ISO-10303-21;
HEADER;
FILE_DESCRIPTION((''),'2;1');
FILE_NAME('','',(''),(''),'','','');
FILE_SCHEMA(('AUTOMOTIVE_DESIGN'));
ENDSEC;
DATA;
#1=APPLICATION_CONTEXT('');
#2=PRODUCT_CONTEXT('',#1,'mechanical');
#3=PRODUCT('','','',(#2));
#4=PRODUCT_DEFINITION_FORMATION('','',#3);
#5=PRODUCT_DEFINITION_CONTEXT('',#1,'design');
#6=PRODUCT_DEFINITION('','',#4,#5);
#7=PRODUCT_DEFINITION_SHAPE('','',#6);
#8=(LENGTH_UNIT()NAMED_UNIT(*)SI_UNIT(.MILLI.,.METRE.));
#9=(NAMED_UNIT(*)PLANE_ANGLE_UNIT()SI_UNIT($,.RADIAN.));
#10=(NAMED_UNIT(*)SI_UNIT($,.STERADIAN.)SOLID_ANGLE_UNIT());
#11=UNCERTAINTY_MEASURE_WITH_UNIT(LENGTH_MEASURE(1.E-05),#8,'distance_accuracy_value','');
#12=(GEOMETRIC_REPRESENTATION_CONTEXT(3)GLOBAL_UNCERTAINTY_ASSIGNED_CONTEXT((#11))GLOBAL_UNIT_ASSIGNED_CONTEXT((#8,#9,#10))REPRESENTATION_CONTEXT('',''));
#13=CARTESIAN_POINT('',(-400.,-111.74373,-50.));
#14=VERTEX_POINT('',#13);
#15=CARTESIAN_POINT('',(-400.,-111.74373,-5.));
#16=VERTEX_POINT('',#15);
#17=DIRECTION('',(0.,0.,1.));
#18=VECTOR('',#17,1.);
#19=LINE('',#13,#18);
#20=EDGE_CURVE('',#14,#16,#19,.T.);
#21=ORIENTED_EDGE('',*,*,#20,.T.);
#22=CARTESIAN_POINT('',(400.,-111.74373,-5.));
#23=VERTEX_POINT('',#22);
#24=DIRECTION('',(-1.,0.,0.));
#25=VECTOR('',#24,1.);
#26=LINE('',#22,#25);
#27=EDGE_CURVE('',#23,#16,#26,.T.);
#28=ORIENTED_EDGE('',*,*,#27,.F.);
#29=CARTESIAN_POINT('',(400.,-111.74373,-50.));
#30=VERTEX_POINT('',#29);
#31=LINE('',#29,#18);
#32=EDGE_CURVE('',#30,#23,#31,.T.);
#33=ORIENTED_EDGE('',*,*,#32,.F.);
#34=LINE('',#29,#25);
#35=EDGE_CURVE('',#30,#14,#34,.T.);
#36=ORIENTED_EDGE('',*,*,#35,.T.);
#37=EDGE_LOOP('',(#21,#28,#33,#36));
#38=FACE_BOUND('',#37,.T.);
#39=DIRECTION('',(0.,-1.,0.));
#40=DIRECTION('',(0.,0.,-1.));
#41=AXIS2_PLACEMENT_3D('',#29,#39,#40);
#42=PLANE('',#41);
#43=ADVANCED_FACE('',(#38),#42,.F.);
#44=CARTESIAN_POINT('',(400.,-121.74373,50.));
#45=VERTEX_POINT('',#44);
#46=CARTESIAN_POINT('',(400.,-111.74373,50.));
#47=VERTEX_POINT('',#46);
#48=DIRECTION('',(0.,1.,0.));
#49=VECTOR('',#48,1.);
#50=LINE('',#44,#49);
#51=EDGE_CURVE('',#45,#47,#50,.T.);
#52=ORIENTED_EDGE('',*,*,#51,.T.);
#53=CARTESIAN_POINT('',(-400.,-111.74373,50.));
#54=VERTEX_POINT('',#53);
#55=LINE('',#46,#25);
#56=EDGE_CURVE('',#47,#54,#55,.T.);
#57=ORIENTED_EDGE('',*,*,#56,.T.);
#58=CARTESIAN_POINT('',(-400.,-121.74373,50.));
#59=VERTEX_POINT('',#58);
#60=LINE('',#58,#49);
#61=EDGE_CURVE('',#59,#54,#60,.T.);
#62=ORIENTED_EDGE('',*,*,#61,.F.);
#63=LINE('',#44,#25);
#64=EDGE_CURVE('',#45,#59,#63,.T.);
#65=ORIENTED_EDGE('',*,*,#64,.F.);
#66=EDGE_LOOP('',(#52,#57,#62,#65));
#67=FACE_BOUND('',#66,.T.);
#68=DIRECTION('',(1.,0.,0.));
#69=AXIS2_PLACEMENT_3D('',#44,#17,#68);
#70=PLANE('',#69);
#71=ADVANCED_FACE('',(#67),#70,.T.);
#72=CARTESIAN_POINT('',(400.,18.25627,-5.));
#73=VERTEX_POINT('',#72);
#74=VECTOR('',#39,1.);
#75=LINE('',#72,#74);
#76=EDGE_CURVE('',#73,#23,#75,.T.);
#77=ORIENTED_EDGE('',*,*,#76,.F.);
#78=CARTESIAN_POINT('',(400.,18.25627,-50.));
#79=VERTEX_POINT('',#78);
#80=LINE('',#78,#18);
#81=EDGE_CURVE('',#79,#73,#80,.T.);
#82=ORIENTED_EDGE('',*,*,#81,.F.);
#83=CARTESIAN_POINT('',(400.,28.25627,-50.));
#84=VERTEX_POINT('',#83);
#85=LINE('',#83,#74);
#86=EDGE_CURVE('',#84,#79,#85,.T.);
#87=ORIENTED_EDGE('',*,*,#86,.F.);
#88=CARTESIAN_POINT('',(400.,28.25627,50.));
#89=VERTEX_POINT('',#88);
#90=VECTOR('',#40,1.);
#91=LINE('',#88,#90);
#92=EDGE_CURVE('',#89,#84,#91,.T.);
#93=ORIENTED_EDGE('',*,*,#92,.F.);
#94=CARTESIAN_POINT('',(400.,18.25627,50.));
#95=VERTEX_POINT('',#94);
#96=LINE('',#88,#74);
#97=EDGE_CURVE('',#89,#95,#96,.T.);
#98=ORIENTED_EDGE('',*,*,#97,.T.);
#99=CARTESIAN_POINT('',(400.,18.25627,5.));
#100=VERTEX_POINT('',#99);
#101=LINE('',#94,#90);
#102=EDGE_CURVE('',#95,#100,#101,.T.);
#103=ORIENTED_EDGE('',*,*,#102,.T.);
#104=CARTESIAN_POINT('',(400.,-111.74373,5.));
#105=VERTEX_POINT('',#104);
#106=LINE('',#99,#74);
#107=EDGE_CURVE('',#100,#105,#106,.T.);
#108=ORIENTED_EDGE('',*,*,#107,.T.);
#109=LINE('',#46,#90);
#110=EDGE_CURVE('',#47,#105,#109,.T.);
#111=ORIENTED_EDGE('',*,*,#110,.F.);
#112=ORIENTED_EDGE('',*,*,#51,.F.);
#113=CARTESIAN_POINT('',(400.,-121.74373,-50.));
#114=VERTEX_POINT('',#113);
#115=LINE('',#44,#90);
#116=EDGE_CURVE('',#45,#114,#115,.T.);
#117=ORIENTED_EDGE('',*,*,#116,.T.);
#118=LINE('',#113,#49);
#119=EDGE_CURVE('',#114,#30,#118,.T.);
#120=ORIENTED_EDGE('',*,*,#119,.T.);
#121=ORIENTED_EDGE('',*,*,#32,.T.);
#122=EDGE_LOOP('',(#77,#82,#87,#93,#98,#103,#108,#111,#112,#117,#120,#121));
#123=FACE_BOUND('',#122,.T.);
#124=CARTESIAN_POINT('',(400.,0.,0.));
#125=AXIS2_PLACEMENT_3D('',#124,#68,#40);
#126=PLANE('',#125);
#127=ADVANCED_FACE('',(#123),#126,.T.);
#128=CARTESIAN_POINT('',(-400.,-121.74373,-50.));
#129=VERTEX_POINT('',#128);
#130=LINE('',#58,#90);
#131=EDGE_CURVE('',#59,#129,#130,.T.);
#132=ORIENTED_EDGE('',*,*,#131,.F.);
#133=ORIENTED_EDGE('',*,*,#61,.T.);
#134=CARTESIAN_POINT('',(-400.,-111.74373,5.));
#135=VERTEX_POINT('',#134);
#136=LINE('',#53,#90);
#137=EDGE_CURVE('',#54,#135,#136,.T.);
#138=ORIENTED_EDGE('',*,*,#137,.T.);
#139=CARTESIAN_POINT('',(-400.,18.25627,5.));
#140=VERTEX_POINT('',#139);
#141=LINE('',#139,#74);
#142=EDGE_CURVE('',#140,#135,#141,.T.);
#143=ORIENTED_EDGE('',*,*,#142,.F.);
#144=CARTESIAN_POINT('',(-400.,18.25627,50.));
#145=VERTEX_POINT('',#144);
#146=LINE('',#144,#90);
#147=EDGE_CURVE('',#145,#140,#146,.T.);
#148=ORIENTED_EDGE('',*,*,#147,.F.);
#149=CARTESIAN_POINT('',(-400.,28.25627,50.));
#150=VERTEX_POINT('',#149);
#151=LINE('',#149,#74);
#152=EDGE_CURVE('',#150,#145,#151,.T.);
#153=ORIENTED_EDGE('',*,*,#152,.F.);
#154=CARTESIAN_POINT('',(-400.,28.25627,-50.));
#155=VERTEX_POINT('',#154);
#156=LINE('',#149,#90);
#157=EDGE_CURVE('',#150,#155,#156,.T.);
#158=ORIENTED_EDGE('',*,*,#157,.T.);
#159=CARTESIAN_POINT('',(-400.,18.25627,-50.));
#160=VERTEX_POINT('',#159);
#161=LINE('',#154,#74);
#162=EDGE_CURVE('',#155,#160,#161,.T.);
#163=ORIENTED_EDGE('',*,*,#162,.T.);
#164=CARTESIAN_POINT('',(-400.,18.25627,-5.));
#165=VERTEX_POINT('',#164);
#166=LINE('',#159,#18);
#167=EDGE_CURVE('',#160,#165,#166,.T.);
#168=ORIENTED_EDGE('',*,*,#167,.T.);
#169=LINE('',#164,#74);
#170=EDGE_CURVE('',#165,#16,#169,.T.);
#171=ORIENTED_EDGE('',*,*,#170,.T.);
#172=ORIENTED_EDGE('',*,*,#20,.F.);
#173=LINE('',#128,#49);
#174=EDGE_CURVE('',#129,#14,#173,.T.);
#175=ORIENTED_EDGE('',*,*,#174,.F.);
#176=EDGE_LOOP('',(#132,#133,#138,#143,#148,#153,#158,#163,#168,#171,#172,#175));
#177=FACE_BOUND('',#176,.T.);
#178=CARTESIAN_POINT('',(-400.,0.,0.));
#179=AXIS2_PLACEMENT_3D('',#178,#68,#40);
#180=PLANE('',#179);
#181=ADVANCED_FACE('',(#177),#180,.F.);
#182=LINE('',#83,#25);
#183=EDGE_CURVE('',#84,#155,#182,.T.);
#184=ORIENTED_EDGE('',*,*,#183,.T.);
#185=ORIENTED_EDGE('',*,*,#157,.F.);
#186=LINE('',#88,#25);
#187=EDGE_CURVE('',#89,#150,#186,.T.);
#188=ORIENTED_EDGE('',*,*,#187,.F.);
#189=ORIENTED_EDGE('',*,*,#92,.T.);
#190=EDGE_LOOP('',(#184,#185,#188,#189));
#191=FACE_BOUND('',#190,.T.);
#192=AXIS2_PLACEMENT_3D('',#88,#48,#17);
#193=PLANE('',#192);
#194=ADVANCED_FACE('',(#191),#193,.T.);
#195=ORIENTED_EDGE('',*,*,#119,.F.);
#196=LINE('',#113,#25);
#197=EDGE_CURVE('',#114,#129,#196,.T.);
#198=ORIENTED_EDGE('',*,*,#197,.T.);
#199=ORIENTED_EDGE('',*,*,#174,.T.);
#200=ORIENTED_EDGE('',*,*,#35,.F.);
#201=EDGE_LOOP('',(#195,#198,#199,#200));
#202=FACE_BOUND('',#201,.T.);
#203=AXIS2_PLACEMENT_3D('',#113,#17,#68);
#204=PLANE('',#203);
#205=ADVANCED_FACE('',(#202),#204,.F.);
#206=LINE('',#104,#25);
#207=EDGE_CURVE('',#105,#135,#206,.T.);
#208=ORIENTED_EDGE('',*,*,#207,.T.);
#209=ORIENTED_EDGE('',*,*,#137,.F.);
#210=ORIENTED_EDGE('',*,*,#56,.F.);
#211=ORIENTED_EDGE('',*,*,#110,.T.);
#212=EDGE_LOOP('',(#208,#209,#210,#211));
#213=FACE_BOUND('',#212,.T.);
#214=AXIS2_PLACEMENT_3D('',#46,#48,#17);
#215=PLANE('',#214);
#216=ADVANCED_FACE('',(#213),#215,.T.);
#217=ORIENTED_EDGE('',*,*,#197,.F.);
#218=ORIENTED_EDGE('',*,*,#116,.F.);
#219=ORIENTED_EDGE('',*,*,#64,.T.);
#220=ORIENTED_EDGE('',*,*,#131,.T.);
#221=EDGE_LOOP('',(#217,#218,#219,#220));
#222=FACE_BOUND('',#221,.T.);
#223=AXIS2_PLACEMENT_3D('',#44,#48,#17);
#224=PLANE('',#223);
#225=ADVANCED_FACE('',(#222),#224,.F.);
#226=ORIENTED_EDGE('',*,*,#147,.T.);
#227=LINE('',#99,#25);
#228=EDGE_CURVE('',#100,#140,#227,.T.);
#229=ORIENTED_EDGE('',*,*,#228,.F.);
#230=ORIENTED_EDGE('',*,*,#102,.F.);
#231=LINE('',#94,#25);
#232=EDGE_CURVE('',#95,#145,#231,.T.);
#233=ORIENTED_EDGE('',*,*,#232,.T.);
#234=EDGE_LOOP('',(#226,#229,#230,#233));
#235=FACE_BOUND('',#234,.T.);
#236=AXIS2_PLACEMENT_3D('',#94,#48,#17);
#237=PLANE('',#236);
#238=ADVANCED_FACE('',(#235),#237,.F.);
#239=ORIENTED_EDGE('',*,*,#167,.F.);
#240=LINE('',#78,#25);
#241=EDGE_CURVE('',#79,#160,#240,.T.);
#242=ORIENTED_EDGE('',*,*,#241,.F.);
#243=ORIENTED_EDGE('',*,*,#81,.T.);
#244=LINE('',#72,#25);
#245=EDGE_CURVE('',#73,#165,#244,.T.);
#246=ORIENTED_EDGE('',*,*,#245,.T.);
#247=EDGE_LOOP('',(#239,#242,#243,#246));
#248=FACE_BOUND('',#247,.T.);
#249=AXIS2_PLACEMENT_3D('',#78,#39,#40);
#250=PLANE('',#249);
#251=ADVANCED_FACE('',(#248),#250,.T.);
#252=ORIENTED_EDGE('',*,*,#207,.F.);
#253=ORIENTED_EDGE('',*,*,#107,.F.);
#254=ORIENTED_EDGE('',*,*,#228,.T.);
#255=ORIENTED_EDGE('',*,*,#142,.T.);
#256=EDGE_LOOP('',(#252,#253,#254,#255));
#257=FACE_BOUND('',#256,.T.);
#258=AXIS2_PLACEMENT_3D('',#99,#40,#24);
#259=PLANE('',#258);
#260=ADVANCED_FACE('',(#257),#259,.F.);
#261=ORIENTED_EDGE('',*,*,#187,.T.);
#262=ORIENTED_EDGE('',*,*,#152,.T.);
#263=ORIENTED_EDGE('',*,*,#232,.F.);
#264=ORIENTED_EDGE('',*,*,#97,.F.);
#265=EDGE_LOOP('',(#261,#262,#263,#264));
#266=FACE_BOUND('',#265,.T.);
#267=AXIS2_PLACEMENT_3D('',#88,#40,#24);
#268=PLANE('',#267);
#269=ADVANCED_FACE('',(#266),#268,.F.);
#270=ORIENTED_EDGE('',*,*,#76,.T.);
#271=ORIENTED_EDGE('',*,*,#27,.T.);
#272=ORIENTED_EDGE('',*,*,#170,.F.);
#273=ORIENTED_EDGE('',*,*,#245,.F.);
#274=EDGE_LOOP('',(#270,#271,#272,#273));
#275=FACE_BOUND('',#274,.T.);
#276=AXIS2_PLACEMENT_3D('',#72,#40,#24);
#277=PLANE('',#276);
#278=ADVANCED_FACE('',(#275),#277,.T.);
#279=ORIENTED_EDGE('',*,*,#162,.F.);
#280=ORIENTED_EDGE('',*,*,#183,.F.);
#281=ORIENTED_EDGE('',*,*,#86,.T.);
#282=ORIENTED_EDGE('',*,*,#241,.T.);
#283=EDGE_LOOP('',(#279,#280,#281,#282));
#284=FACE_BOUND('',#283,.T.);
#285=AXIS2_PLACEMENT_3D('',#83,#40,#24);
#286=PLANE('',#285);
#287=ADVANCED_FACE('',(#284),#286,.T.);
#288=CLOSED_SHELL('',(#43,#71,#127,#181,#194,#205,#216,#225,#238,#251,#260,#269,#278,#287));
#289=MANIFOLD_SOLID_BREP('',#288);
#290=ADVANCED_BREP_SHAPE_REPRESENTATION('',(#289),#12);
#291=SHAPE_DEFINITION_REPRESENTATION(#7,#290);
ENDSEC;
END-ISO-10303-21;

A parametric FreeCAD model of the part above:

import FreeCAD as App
import Part
import Sketcher
Q = App.Units.Quantity


def add_polygon(sketch, points):
    """Adds a closed chain of lines whose ends are joined by coincident constraints."""
    first, n = sketch.GeometryCount, len(points)
    for a, b in zip(points, points[1:] + points[:1]):
        sketch.addGeometry(Part.LineSegment(App.Vector(*a, 0), App.Vector(*b, 0)), False)
    for i in range(n):
        sketch.addConstraint(Sketcher.Constraint("Coincident", first + i, 2, first + (i + 1) % n, 1))

doc = App.newDocument("Part")
body = doc.addObject("PartDesign::Body", "Body")

sketch1 = body.newObject("Sketcher::SketchObject", "Sketch")
sketch1.AttachmentSupport = (doc.getObject("YZ_Plane"), [""])
sketch1.MapMode = "FlatFace"
add_polygon(sketch1, [(28, -50), (28, 50), (18, 50), (18, 5), (-112, 5), (-112, 50), (-122, 50), (-122, -50), (-112, -50), (-112, -5), (18, -5), (18, -50)])
sketch1.addConstraint([
    Sketcher.Constraint("Vertical", 0),
    Sketcher.Constraint("Horizontal", 1),
    Sketcher.Constraint("Vertical", 2),
    Sketcher.Constraint("Horizontal", 3),
    Sketcher.Constraint("Vertical", 4),
    Sketcher.Constraint("Horizontal", 5),
    Sketcher.Constraint("Vertical", 6),
    Sketcher.Constraint("Horizontal", 7),
    Sketcher.Constraint("Vertical", 8),
    Sketcher.Constraint("Horizontal", 9),
    Sketcher.Constraint("Vertical", 10),
    Sketcher.Constraint("Horizontal", 11),
    Sketcher.Constraint("Symmetric", 4, 2, 7, 2, -1),
    Sketcher.Constraint("Symmetric", 2, 2, 9, 2, -1),
    Sketcher.Constraint("Horizontal", 1, 2, 4, 2),
    Sketcher.Constraint("Horizontal", 7, 2, 10, 2),
    Sketcher.Constraint("Equal", 1, 5),
    Sketcher.Constraint("DistanceX", 1, 2, 1, 1, Q("10 mm")),
    Sketcher.Constraint("DistanceX", 3, 2, 3, 1, Q("130 mm")),
    Sketcher.Constraint("DistanceY", 0, 1, 0, 2, Q("100 mm")),
    Sketcher.Constraint("DistanceY", 2, 2, 2, 1, Q("45 mm")),
    Sketcher.Constraint("DistanceX", -1, 1, 0, 2, Q("28.25627 mm")),
])
pad1 = body.newObject("PartDesign::Pad", "Pad")
pad1.Profile = sketch1
pad1.Length = 800
pad1.Midplane = True

doc.recompute()
